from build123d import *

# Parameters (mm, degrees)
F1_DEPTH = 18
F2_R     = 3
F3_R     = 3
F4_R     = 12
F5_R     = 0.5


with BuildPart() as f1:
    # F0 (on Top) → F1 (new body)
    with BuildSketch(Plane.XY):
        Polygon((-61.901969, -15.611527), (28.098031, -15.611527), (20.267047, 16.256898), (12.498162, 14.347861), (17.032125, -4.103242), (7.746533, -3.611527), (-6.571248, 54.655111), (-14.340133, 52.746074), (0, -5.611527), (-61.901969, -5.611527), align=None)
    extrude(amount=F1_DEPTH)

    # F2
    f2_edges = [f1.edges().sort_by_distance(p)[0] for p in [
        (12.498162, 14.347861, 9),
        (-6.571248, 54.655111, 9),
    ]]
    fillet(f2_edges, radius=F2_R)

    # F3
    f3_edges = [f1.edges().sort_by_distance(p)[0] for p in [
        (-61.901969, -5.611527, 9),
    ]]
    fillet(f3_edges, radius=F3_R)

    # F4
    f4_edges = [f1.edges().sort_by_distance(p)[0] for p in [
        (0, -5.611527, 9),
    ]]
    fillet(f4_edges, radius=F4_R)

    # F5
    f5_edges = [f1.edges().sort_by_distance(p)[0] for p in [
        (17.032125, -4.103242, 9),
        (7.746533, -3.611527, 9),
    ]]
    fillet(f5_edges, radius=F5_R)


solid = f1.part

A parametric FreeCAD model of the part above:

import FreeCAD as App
import Part
import Sketcher
from FreeCAD import Vector


def edges_at(feature, points):
    """Names of the edges that pass closest to the given points."""
    edges = feature.Shape.Edges
    near = lambda p: min(range(len(edges)), key=lambda i: edges[i].distToShape(Part.Vertex(*p))[0])
    return sorted({f"Edge{near(p) + 1}" for p in points})


def add_polygon(sketch, points):
    """Adds a closed chain of lines whose ends are joined by coincident constraints."""
    first, n = sketch.GeometryCount, len(points)
    for a, b in zip(points, points[1:] + points[:1]):
        sketch.addGeometry(Part.LineSegment(App.Vector(*a, 0), App.Vector(*b, 0)), False)
    for i in range(n):
        sketch.addConstraint(Sketcher.Constraint("Coincident", first + i, 2, first + (i + 1) % n, 1))

doc = App.newDocument("Part")
body = doc.addObject("PartDesign::Body", "Body")

# Sketch on XY plane
sketch1 = doc.addObject("Sketcher::SketchObject", "Sketch")
body.addObject(sketch1)
sketch1.AttachmentSupport = (doc.XY_Plane, [""])
sketch1.MapMode = "FlatFace"
add_polygon(sketch1, [(-61.901969, -15.611527), (28.098031, -15.611527), (20.267047, 16.256898), (12.498162, 14.347861), (17.032125, -4.103242), (7.746533, -3.611527), (-6.571248, 54.655111), (-14.340133, 52.746074), (0, -5.611527), (-61.901969, -5.611527)])  # lines 0-9
sketch1.addConstraint([
    Sketcher.Constraint("Horizontal", 0),
    Sketcher.Constraint("Horizontal", 8),
    Sketcher.Constraint("Vertical", 9),
    Sketcher.Constraint("PointOnObject", 7, 2, -2),
    Sketcher.Constraint("Perpendicular", 1, 2),
    Sketcher.Constraint("Perpendicular", 2, 3),
    Sketcher.Constraint("Parallel", 3, 5),
    Sketcher.Constraint("Perpendicular", 5, 6),
    Sketcher.Constraint("Perpendicular", 6, 7),
    Sketcher.Constraint("Equal", 2, 6),
    Sketcher.Constraint("DistanceX", 0, 1, 0, 2, 90.0),
    Sketcher.Constraint("DistanceY", 9, 2, 9, 1, 10.0),
    Sketcher.Constraint("Distance", 2, 8.0),
    Sketcher.Constraint("Distance", 3, 19.000001),
    Sketcher.Constraint("Distance", 5, 60.0),
    Sketcher.Constraint("DistanceY", 0, 2, 4, 2, 12.0),
    Sketcher.Constraint("DistanceX", 8, 2, 8, 1, 61.901969),
    Sketcher.Constraint("DistanceY", 4, 2, 6, 2, 56.357601),
    Sketcher.Constraint("Distance", 1, 32.816472),
    Sketcher.Constraint("DistanceY", -1, 1, 2, 2, 14.347861),
])
pad1 = doc.addObject("PartDesign::Pad", "Pad")
body.addObject(pad1)
pad1.Profile = sketch1
pad1.Length = 18
doc.recompute()

fillet = doc.addObject("PartDesign::Fillet", "Fillet")
body.addObject(fillet)
fillet.Base = (pad1, edges_at(pad1, [(12.498, 14.348, 9), (-6.571, 54.655, 9)]))
fillet.Radius = 3
doc.recompute()

fillet2 = doc.addObject("PartDesign::Fillet", "Fillet001")
body.addObject(fillet2)
fillet2.Base = (fillet, edges_at(fillet, [(-61.902, -5.612, 9)]))
fillet2.Radius = 3
doc.recompute()

fillet3 = doc.addObject("PartDesign::Fillet", "Fillet002")
body.addObject(fillet3)
fillet3.Base = (fillet2, edges_at(fillet2, [(0, -5.612, 9)]))
fillet3.Radius = 12
doc.recompute()

fillet4 = doc.addObject("PartDesign::Fillet", "Fillet003")
body.addObject(fillet4)
fillet4.Base = (fillet3, edges_at(fillet3, [(17.032, -4.103, 9), (7.747, -3.612, 9)]))
fillet4.Radius = 0.5

doc.recompute()
